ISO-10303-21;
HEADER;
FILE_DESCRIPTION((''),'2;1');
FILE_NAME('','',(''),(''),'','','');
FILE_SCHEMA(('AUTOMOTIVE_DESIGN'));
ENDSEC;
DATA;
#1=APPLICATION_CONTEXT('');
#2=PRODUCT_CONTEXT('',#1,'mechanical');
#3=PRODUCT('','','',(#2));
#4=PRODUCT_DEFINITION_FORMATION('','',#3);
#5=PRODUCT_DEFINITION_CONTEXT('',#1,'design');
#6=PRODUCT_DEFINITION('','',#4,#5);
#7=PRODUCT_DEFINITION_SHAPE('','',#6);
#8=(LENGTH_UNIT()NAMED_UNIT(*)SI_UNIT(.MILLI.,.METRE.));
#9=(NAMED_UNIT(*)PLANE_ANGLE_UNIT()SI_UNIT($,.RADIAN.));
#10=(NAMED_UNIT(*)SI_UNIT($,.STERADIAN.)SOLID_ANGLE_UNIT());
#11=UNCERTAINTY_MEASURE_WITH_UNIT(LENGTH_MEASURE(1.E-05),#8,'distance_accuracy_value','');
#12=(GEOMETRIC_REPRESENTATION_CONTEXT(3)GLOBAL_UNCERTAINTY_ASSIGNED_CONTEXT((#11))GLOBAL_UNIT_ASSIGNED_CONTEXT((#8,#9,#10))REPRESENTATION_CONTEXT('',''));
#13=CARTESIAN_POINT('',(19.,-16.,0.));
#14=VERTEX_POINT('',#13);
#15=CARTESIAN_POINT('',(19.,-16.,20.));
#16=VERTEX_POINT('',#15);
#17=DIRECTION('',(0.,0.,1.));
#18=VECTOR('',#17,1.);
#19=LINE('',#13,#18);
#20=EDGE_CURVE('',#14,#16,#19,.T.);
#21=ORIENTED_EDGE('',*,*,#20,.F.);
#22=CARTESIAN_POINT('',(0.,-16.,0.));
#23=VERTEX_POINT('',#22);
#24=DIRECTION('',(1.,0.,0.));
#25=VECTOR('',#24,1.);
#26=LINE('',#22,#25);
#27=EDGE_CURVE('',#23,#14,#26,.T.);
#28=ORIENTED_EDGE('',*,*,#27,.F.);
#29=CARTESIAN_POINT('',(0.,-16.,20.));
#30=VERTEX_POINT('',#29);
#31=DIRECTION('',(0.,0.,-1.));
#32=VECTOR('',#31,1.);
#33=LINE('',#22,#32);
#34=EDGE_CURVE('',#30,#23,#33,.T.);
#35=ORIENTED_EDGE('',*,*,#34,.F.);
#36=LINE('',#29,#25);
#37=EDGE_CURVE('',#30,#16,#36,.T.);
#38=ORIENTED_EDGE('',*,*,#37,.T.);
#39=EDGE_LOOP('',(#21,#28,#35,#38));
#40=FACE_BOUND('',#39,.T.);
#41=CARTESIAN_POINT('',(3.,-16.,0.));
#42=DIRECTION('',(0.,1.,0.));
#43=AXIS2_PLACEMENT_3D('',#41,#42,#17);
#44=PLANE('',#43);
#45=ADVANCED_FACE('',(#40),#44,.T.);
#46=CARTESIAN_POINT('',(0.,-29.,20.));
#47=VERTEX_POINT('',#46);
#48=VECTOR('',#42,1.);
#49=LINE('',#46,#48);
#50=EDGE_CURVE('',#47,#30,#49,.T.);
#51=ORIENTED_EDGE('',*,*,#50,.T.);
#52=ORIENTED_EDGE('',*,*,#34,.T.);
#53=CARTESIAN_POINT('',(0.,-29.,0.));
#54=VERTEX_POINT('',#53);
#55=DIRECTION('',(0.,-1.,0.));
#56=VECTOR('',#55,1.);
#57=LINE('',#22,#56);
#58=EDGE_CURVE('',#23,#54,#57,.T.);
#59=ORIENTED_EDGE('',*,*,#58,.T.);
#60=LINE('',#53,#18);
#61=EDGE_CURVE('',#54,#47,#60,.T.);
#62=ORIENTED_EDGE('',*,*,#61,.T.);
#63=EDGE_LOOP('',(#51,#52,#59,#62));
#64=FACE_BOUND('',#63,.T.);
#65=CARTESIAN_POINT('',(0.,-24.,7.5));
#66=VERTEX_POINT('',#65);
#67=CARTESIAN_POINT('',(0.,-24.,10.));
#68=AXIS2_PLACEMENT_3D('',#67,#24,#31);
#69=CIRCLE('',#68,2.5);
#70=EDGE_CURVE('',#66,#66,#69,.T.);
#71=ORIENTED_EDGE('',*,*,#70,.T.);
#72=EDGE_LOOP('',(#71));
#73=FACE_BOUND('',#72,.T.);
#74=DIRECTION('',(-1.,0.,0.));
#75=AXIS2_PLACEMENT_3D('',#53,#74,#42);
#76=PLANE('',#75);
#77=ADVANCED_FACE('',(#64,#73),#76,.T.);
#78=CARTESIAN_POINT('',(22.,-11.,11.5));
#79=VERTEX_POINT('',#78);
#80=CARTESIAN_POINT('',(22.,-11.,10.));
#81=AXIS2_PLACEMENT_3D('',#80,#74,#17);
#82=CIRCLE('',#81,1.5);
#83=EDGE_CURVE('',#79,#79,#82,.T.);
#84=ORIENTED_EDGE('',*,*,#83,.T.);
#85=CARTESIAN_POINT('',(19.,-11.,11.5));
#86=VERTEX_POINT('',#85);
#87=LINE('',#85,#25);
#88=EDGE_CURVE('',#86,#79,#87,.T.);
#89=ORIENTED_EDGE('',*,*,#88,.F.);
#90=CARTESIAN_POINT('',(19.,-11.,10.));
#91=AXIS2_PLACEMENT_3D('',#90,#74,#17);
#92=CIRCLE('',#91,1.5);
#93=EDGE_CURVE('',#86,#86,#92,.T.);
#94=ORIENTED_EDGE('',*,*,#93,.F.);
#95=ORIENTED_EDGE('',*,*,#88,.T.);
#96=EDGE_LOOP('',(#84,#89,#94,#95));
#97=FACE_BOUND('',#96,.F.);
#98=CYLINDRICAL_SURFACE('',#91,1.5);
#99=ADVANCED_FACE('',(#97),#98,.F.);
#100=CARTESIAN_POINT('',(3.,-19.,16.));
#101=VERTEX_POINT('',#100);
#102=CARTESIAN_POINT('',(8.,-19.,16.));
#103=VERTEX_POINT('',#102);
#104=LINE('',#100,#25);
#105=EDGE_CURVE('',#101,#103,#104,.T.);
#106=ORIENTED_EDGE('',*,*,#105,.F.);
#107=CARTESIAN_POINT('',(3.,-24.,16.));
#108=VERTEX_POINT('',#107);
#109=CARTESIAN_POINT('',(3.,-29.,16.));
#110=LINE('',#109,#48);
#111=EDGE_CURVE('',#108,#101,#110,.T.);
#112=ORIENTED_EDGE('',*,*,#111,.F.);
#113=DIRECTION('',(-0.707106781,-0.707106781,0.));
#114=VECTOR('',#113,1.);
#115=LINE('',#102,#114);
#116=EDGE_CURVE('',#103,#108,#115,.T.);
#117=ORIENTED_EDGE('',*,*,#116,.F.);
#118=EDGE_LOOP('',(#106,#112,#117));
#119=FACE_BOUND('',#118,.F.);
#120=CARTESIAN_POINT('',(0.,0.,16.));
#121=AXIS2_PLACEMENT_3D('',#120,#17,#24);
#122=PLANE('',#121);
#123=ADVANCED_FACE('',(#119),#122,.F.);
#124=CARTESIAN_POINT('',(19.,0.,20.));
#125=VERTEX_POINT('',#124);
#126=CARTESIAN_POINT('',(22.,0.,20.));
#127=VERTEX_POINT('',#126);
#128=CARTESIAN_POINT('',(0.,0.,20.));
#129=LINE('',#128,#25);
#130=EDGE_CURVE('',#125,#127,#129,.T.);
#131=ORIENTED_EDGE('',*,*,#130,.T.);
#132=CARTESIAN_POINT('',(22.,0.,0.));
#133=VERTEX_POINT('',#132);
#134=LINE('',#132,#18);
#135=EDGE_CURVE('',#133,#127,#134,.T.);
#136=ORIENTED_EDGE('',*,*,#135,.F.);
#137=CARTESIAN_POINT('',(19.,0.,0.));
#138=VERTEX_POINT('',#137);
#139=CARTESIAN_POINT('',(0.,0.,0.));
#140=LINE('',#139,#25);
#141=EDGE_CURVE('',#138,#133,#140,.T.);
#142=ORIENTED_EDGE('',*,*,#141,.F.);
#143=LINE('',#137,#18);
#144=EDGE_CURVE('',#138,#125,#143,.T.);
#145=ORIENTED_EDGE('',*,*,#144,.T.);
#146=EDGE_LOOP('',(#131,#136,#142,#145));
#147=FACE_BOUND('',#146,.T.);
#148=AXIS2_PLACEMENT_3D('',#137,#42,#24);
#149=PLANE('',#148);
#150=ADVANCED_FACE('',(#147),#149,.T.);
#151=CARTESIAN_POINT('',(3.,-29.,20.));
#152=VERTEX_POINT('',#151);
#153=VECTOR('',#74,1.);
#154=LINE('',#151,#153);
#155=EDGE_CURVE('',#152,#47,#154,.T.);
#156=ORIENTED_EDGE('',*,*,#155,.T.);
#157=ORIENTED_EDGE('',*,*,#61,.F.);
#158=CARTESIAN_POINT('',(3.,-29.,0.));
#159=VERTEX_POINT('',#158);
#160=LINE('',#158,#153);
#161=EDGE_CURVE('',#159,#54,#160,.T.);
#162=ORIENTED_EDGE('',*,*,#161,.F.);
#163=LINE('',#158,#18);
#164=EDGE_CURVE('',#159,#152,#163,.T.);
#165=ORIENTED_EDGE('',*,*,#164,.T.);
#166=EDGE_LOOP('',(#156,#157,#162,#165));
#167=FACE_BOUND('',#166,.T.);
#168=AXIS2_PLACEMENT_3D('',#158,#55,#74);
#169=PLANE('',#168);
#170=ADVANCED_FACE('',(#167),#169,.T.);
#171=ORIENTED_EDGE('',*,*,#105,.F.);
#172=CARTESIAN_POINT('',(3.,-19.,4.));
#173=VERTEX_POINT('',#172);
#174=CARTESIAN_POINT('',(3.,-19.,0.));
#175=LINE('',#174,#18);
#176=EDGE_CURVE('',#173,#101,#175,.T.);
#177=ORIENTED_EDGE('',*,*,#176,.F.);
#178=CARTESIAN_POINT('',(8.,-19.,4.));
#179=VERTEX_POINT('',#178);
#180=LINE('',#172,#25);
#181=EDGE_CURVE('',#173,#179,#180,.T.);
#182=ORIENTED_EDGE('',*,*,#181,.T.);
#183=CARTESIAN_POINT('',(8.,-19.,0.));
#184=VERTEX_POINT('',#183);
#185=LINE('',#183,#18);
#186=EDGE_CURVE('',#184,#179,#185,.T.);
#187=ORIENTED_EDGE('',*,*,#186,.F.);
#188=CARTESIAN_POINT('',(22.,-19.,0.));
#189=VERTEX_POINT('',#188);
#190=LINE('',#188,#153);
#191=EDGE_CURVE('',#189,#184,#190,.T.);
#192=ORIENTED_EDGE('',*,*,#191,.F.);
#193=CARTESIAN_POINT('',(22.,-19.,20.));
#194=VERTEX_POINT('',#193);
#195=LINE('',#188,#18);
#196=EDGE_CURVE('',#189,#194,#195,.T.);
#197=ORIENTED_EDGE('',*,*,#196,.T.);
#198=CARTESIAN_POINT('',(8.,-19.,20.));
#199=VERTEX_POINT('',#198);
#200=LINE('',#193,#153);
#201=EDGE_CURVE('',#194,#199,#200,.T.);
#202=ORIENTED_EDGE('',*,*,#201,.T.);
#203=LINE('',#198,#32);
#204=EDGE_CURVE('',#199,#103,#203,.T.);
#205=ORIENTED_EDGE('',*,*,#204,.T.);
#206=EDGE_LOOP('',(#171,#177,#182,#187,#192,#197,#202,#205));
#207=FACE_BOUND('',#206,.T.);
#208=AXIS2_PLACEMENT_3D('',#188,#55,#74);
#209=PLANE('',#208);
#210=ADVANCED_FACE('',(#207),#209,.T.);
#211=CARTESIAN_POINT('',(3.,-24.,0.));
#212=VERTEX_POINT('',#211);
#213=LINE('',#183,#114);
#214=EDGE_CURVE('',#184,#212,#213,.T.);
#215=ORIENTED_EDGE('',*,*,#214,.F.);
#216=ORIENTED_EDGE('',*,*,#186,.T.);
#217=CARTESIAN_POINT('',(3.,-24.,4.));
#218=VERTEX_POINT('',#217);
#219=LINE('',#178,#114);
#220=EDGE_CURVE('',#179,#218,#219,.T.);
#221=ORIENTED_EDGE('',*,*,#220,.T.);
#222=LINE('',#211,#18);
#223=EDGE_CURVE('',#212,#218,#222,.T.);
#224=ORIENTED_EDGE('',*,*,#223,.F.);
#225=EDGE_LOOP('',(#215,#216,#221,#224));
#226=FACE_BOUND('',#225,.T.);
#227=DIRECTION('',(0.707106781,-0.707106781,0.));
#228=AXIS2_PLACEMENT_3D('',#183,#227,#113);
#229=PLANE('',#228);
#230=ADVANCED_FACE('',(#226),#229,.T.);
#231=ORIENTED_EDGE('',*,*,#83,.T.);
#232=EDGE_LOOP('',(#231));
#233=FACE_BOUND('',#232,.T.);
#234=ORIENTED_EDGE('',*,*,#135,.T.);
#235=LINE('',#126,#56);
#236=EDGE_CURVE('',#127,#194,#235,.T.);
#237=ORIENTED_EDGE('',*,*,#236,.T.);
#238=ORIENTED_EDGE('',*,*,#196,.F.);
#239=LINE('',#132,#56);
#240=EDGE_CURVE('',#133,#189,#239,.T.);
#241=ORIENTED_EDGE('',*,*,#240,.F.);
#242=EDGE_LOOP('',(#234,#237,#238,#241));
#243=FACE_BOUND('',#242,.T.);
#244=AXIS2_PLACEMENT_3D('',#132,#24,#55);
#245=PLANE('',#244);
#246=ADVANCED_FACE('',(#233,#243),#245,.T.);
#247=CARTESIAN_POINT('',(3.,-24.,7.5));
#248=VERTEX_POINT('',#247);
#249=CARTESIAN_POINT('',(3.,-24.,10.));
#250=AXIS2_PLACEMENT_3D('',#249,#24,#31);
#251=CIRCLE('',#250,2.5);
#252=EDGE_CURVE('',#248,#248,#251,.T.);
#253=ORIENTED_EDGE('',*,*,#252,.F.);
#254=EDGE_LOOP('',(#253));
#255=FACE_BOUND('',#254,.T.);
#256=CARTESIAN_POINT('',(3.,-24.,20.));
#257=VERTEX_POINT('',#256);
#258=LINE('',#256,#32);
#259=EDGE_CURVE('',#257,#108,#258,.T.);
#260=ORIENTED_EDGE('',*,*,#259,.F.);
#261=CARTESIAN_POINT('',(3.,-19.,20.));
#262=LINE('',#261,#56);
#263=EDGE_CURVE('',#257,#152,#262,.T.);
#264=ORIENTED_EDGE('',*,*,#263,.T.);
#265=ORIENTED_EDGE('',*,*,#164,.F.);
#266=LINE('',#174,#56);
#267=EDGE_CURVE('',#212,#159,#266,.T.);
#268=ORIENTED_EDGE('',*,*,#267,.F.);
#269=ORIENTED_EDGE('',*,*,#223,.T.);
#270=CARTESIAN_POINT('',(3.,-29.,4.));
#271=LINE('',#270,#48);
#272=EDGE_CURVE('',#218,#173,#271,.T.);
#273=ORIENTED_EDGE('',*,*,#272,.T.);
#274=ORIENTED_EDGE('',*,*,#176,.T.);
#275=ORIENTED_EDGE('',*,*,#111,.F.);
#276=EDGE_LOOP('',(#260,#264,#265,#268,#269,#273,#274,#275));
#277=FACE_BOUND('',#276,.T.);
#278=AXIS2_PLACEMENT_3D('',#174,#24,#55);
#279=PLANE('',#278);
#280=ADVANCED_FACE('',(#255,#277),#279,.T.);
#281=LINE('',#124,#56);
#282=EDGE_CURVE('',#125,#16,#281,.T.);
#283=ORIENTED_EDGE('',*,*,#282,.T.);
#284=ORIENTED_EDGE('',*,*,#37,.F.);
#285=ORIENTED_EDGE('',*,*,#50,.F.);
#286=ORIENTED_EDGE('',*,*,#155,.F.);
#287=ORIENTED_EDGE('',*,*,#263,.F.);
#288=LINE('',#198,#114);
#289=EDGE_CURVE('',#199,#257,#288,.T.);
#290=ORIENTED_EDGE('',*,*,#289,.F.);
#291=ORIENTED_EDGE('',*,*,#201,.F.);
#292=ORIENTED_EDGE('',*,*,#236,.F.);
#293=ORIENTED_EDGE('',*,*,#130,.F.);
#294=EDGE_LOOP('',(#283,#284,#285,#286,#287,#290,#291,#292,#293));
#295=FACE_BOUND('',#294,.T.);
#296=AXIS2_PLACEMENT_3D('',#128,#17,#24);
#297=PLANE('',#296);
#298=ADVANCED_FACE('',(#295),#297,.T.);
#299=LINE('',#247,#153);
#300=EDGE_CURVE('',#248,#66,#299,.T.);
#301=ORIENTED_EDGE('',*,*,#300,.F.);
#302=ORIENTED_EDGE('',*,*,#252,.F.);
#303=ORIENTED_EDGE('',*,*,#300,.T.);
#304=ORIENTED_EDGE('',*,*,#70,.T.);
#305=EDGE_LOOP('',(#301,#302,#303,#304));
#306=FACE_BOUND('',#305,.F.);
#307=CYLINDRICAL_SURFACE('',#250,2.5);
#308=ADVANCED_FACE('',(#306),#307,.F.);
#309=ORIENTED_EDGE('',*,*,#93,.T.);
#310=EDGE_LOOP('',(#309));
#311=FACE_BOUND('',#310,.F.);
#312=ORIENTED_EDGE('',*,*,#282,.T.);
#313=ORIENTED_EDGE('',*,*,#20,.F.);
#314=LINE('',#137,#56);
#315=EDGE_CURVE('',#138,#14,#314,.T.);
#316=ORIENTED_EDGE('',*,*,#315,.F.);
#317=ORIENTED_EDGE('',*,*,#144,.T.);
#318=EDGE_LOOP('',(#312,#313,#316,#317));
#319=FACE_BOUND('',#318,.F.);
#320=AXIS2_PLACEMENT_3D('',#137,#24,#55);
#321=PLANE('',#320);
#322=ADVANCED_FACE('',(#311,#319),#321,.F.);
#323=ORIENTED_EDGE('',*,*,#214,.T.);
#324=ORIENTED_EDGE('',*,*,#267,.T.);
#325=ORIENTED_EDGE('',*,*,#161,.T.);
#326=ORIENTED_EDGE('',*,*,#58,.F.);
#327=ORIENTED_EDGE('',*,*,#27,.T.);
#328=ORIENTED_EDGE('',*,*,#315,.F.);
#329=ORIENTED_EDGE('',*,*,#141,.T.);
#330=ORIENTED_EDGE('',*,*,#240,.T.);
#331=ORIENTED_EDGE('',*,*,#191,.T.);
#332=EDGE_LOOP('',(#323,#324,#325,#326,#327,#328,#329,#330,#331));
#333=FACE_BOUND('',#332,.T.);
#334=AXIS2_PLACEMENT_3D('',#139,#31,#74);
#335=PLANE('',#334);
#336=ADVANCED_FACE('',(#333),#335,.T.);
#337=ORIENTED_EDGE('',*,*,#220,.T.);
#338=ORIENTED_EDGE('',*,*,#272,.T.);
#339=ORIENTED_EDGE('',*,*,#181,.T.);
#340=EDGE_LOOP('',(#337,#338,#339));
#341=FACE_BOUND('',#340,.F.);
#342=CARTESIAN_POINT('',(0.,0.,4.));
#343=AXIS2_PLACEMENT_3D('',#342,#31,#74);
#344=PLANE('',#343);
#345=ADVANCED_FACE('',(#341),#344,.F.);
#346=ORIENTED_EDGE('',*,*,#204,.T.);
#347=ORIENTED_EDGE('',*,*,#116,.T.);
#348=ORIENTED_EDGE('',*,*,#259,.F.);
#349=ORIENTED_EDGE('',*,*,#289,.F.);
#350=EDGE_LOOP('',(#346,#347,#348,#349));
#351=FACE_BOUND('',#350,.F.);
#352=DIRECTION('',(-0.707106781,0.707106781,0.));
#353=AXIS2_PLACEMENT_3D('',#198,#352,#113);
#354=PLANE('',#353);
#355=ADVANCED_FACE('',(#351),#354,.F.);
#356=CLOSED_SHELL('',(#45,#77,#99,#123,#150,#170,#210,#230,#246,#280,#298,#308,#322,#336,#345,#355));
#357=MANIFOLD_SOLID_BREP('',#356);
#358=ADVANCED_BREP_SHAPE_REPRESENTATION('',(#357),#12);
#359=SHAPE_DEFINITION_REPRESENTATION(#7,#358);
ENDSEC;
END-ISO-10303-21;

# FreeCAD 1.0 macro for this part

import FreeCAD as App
import Part
import Sketcher

V = App.Vector
Q = App.Units.Quantity

doc = App.newDocument("Part")
body = doc.addObject("PartDesign::Body", "Body")

# Sketch on XY plane
sketch1 = body.newObject("Sketcher::SketchObject", "Sketch")
sketch1.AttachmentSupport = (doc.getObject("XY_Plane"), [""])
sketch1.MapMode = "FlatFace"
sketch1.addGeometry([
    Part.LineSegment(V(3, 0, 0), V(0, 0, 0)),  # 0
    Part.LineSegment(V(0, 0, 0), V(0, -19, 0)),  # 1
    Part.LineSegment(V(0, -19, 0), V(22, -19, 0)),  # 2
    Part.LineSegment(V(22, -19, 0), V(22, 0, 0)),  # 3
    Part.LineSegment(V(22, 0, 0), V(19, 0, 0)),  # 4
    Part.LineSegment(V(19, 0, 0), V(19, -16, 0)),  # 5
    Part.LineSegment(V(19, -16, 0), V(3, -16, 0)),  # 6
    Part.LineSegment(V(3, -16, 0), V(3, 0, 0)),  # 7
], False)
sketch1.addConstraint([
    Sketcher.Constraint("Coincident", 0, 2, 1, 1),
    Sketcher.Constraint("Coincident", 1, 2, 2, 1),
    Sketcher.Constraint("Coincident", 2, 2, 3, 1),
    Sketcher.Constraint("Coincident", 3, 2, 4, 1),
    Sketcher.Constraint("Coincident", 4, 2, 5, 1),
    Sketcher.Constraint("Coincident", 5, 2, 6, 1),
    Sketcher.Constraint("Coincident", 6, 2, 7, 1),
    Sketcher.Constraint("Coincident", 7, 2, 0, 1),
    Sketcher.Constraint("Horizontal", 0),
    Sketcher.Constraint("Vertical", 1),
    Sketcher.Constraint("Horizontal", 2),
    Sketcher.Constraint("Vertical", 3),
    Sketcher.Constraint("Horizontal", 4),
    Sketcher.Constraint("Vertical", 5),
    Sketcher.Constraint("Horizontal", 6),
    Sketcher.Constraint("Vertical", 7),
    Sketcher.Constraint("Coincident", 0, 2, -1, 1),
    Sketcher.Constraint("PointOnObject", 3, 2, -1),
    Sketcher.Constraint("Equal", 0, 4),
    Sketcher.Constraint("Equal", 6, 5),
    Sketcher.Constraint("DistanceX", 0, 2, 0, 1, Q("3 mm")),
    Sketcher.Constraint("DistanceX", 2, 1, 2, 2, Q("22 mm")),
    Sketcher.Constraint("DistanceY", 1, 2, 1, 1, Q("19 mm")),
])
pad1 = body.newObject("PartDesign::Pad", "Pad")
pad1.Profile = sketch1
pad1.Length = 20

# Sketch on YZ plane
sketch2 = body.newObject("Sketcher::SketchObject", "Sketch001")
sketch2.AttachmentSupport = (doc.getObject("YZ_Plane"), [""])
sketch2.MapMode = "FlatFace"
sketch2.AttachmentOffset = App.Placement(V(0, 0, 3), App.Rotation())
sketch2.addGeometry([
    Part.LineSegment(V(0, 20, 0), V(-16, 20, 0)),
    Part.LineSegment(V(-16, 20, 0), V(-16, 0, 0)),
    Part.LineSegment(V(-16, 0, 0), V(0, 0, 0)),
    Part.LineSegment(V(0, 0, 0), V(0, 20, 0)),
], False)
sketch2.addConstraint([
    Sketcher.Constraint("Coincident", 0, 2, 1, 1),
    Sketcher.Constraint("Coincident", 1, 2, 2, 1),
    Sketcher.Constraint("Coincident", 2, 2, 3, 1),
    Sketcher.Constraint("Coincident", 3, 2, 0, 1),
    Sketcher.Constraint("Horizontal", 0),
    Sketcher.Constraint("Vertical", 1),
    Sketcher.Constraint("Horizontal", 2),
    Sketcher.Constraint("Vertical", 3),
    Sketcher.Constraint("Coincident", 2, 2, -1, 1),
    Sketcher.Constraint("DistanceX", 0, 2, 0, 1, Q("16 mm")),
    Sketcher.Constraint("DistanceY", 1, 2, 1, 1, Q("20 mm")),
])
pocket1 = body.newObject("PartDesign::Pocket", "Pocket")
pocket1.Profile = sketch2
pocket1.Type = "ThroughAll"

# Sketch on XY plane
sketch3 = body.newObject("Sketcher::SketchObject", "Sketch002")
sketch3.AttachmentSupport = (doc.getObject("XY_Plane"), [""])
sketch3.MapMode = "FlatFace"
sketch3.addGeometry([
    Part.LineSegment(V(0, -29, 0), V(0, -19, 0)),
    Part.LineSegment(V(0, -19, 0), V(3, -19, 0)),
    Part.LineSegment(V(3, -19, 0), V(3, -29, 0)),
    Part.LineSegment(V(3, -29, 0), V(0, -29, 0)),
], False)
sketch3.addConstraint([
    Sketcher.Constraint("Coincident", 0, 2, 1, 1),
    Sketcher.Constraint("Coincident", 1, 2, 2, 1),
    Sketcher.Constraint("Coincident", 2, 2, 3, 1),
    Sketcher.Constraint("Coincident", 3, 2, 0, 1),
    Sketcher.Constraint("Vertical", 0),
    Sketcher.Constraint("Horizontal", 1),
    Sketcher.Constraint("Vertical", 2),
    Sketcher.Constraint("Horizontal", 3),
    Sketcher.Constraint("PointOnObject", 0, 2, -2),
    Sketcher.Constraint("DistanceX", 1, 1, 1, 2, Q("3 mm")),
    Sketcher.Constraint("DistanceY", 0, 1, 0, 2, Q("10 mm")),
    Sketcher.Constraint("DistanceY", 0, 2, -1, 1, Q("19 mm")),
])
pad2 = body.newObject("PartDesign::Pad", "Pad001")
pad2.Profile = sketch3
pad2.Length = 20

# Sketch on YZ plane
sketch4 = body.newObject("Sketcher::SketchObject", "Sketch003")
sketch4.AttachmentSupport = (doc.getObject("YZ_Plane"), [""])
sketch4.MapMode = "FlatFace"
sketch4.AttachmentOffset = App.Placement(V(0, 0, 3), App.Rotation())
sketch4.addGeometry(Part.Circle(V(-24, 10, 0), V(0, 0, 1), 2.5), False)
sketch4.addConstraint([
    Sketcher.Constraint("Diameter", 0, Q("5 mm")),
    Sketcher.Constraint("DistanceY", -1, 1, 0, 3, Q("10 mm")),
    Sketcher.Constraint("DistanceX", 0, 3, -1, 1, Q("24 mm")),
])
pocket2 = body.newObject("PartDesign::Pocket", "Pocket001")
pocket2.Profile = sketch4
pocket2.Type = "ThroughAll"

# Sketch on XY plane
sketch5 = body.newObject("Sketcher::SketchObject", "Sketch004")
sketch5.AttachmentSupport = (doc.getObject("XY_Plane"), [""])
sketch5.MapMode = "FlatFace"
sketch5.addGeometry([
    Part.LineSegment(V(3, -24, 0), V(3, -19, 0)),
    Part.LineSegment(V(3, -19, 0), V(8, -19, 0)),
    Part.LineSegment(V(8, -19, 0), V(3, -24, 0)),
], False)
sketch5.addConstraint([
    Sketcher.Constraint("Coincident", 0, 2, 1, 1),
    Sketcher.Constraint("Coincident", 1, 2, 2, 1),
    Sketcher.Constraint("Coincident", 2, 2, 0, 1),
    Sketcher.Constraint("Vertical", 0),
    Sketcher.Constraint("Horizontal", 1),
    Sketcher.Constraint("Equal", 1, 0),
    Sketcher.Constraint("DistanceX", 1, 1, 1, 2, Q("5 mm")),
    Sketcher.Constraint("DistanceX", -1, 1, 0, 2, Q("3 mm")),
    Sketcher.Constraint("DistanceY", 0, 2, -1, 1, Q("19 mm")),
])
pad3 = body.newObject("PartDesign::Pad", "Pad002")
pad3.Profile = sketch5
pad3.Length = 4

# Sketch on XY plane
sketch6 = body.newObject("Sketcher::SketchObject", "Sketch005")
sketch6.AttachmentSupport = (doc.getObject("XY_Plane"), [""])
sketch6.MapMode = "FlatFace"
sketch6.AttachmentOffset = App.Placement(V(0, 0, 20), App.Rotation())
sketch6.addGeometry([
    Part.LineSegment(V(8, -19, 0), V(3, -19, 0)),
    Part.LineSegment(V(3, -19, 0), V(3, -24, 0)),
    Part.LineSegment(V(3, -24, 0), V(8, -19, 0)),
], False)
sketch6.addConstraint([
    Sketcher.Constraint("Coincident", 0, 2, 1, 1),
    Sketcher.Constraint("Coincident", 1, 2, 2, 1),
    Sketcher.Constraint("Coincident", 2, 2, 0, 1),
    Sketcher.Constraint("Horizontal", 0),
    Sketcher.Constraint("Vertical", 1),
    Sketcher.Constraint("Equal", 0, 1),
    Sketcher.Constraint("DistanceX", 0, 2, 0, 1, Q("5 mm")),
    Sketcher.Constraint("DistanceX", -1, 1, 0, 2, Q("3 mm")),
    Sketcher.Constraint("DistanceY", 0, 2, -1, 1, Q("19 mm")),
])
pad4 = body.newObject("PartDesign::Pad", "Pad003")
pad4.Profile = sketch6
pad4.Length = 4
pad4.Reversed = True

# Sketch on YZ plane
sketch7 = body.newObject("Sketcher::SketchObject", "Sketch006")
sketch7.AttachmentSupport = (doc.getObject("YZ_Plane"), [""])
sketch7.MapMode = "FlatFace"
sketch7.AttachmentOffset = App.Placement(V(0, 0, 19), App.Rotation())
sketch7.addGeometry(Part.Circle(V(-11, 10, 0), V(0, 0, 1), 1.5), False)
sketch7.addConstraint([
    Sketcher.Constraint("Diameter", 0, Q("3 mm")),
    Sketcher.Constraint("DistanceY", -1, 1, 0, 3, Q("10 mm")),
    Sketcher.Constraint("DistanceX", 0, 3, -1, 1, Q("11 mm")),
])
pocket3 = body.newObject("PartDesign::Pocket", "Pocket002")
pocket3.Profile = sketch7
pocket3.Type = "ThroughAll"
pocket3.Reversed = True

doc.recompute()
